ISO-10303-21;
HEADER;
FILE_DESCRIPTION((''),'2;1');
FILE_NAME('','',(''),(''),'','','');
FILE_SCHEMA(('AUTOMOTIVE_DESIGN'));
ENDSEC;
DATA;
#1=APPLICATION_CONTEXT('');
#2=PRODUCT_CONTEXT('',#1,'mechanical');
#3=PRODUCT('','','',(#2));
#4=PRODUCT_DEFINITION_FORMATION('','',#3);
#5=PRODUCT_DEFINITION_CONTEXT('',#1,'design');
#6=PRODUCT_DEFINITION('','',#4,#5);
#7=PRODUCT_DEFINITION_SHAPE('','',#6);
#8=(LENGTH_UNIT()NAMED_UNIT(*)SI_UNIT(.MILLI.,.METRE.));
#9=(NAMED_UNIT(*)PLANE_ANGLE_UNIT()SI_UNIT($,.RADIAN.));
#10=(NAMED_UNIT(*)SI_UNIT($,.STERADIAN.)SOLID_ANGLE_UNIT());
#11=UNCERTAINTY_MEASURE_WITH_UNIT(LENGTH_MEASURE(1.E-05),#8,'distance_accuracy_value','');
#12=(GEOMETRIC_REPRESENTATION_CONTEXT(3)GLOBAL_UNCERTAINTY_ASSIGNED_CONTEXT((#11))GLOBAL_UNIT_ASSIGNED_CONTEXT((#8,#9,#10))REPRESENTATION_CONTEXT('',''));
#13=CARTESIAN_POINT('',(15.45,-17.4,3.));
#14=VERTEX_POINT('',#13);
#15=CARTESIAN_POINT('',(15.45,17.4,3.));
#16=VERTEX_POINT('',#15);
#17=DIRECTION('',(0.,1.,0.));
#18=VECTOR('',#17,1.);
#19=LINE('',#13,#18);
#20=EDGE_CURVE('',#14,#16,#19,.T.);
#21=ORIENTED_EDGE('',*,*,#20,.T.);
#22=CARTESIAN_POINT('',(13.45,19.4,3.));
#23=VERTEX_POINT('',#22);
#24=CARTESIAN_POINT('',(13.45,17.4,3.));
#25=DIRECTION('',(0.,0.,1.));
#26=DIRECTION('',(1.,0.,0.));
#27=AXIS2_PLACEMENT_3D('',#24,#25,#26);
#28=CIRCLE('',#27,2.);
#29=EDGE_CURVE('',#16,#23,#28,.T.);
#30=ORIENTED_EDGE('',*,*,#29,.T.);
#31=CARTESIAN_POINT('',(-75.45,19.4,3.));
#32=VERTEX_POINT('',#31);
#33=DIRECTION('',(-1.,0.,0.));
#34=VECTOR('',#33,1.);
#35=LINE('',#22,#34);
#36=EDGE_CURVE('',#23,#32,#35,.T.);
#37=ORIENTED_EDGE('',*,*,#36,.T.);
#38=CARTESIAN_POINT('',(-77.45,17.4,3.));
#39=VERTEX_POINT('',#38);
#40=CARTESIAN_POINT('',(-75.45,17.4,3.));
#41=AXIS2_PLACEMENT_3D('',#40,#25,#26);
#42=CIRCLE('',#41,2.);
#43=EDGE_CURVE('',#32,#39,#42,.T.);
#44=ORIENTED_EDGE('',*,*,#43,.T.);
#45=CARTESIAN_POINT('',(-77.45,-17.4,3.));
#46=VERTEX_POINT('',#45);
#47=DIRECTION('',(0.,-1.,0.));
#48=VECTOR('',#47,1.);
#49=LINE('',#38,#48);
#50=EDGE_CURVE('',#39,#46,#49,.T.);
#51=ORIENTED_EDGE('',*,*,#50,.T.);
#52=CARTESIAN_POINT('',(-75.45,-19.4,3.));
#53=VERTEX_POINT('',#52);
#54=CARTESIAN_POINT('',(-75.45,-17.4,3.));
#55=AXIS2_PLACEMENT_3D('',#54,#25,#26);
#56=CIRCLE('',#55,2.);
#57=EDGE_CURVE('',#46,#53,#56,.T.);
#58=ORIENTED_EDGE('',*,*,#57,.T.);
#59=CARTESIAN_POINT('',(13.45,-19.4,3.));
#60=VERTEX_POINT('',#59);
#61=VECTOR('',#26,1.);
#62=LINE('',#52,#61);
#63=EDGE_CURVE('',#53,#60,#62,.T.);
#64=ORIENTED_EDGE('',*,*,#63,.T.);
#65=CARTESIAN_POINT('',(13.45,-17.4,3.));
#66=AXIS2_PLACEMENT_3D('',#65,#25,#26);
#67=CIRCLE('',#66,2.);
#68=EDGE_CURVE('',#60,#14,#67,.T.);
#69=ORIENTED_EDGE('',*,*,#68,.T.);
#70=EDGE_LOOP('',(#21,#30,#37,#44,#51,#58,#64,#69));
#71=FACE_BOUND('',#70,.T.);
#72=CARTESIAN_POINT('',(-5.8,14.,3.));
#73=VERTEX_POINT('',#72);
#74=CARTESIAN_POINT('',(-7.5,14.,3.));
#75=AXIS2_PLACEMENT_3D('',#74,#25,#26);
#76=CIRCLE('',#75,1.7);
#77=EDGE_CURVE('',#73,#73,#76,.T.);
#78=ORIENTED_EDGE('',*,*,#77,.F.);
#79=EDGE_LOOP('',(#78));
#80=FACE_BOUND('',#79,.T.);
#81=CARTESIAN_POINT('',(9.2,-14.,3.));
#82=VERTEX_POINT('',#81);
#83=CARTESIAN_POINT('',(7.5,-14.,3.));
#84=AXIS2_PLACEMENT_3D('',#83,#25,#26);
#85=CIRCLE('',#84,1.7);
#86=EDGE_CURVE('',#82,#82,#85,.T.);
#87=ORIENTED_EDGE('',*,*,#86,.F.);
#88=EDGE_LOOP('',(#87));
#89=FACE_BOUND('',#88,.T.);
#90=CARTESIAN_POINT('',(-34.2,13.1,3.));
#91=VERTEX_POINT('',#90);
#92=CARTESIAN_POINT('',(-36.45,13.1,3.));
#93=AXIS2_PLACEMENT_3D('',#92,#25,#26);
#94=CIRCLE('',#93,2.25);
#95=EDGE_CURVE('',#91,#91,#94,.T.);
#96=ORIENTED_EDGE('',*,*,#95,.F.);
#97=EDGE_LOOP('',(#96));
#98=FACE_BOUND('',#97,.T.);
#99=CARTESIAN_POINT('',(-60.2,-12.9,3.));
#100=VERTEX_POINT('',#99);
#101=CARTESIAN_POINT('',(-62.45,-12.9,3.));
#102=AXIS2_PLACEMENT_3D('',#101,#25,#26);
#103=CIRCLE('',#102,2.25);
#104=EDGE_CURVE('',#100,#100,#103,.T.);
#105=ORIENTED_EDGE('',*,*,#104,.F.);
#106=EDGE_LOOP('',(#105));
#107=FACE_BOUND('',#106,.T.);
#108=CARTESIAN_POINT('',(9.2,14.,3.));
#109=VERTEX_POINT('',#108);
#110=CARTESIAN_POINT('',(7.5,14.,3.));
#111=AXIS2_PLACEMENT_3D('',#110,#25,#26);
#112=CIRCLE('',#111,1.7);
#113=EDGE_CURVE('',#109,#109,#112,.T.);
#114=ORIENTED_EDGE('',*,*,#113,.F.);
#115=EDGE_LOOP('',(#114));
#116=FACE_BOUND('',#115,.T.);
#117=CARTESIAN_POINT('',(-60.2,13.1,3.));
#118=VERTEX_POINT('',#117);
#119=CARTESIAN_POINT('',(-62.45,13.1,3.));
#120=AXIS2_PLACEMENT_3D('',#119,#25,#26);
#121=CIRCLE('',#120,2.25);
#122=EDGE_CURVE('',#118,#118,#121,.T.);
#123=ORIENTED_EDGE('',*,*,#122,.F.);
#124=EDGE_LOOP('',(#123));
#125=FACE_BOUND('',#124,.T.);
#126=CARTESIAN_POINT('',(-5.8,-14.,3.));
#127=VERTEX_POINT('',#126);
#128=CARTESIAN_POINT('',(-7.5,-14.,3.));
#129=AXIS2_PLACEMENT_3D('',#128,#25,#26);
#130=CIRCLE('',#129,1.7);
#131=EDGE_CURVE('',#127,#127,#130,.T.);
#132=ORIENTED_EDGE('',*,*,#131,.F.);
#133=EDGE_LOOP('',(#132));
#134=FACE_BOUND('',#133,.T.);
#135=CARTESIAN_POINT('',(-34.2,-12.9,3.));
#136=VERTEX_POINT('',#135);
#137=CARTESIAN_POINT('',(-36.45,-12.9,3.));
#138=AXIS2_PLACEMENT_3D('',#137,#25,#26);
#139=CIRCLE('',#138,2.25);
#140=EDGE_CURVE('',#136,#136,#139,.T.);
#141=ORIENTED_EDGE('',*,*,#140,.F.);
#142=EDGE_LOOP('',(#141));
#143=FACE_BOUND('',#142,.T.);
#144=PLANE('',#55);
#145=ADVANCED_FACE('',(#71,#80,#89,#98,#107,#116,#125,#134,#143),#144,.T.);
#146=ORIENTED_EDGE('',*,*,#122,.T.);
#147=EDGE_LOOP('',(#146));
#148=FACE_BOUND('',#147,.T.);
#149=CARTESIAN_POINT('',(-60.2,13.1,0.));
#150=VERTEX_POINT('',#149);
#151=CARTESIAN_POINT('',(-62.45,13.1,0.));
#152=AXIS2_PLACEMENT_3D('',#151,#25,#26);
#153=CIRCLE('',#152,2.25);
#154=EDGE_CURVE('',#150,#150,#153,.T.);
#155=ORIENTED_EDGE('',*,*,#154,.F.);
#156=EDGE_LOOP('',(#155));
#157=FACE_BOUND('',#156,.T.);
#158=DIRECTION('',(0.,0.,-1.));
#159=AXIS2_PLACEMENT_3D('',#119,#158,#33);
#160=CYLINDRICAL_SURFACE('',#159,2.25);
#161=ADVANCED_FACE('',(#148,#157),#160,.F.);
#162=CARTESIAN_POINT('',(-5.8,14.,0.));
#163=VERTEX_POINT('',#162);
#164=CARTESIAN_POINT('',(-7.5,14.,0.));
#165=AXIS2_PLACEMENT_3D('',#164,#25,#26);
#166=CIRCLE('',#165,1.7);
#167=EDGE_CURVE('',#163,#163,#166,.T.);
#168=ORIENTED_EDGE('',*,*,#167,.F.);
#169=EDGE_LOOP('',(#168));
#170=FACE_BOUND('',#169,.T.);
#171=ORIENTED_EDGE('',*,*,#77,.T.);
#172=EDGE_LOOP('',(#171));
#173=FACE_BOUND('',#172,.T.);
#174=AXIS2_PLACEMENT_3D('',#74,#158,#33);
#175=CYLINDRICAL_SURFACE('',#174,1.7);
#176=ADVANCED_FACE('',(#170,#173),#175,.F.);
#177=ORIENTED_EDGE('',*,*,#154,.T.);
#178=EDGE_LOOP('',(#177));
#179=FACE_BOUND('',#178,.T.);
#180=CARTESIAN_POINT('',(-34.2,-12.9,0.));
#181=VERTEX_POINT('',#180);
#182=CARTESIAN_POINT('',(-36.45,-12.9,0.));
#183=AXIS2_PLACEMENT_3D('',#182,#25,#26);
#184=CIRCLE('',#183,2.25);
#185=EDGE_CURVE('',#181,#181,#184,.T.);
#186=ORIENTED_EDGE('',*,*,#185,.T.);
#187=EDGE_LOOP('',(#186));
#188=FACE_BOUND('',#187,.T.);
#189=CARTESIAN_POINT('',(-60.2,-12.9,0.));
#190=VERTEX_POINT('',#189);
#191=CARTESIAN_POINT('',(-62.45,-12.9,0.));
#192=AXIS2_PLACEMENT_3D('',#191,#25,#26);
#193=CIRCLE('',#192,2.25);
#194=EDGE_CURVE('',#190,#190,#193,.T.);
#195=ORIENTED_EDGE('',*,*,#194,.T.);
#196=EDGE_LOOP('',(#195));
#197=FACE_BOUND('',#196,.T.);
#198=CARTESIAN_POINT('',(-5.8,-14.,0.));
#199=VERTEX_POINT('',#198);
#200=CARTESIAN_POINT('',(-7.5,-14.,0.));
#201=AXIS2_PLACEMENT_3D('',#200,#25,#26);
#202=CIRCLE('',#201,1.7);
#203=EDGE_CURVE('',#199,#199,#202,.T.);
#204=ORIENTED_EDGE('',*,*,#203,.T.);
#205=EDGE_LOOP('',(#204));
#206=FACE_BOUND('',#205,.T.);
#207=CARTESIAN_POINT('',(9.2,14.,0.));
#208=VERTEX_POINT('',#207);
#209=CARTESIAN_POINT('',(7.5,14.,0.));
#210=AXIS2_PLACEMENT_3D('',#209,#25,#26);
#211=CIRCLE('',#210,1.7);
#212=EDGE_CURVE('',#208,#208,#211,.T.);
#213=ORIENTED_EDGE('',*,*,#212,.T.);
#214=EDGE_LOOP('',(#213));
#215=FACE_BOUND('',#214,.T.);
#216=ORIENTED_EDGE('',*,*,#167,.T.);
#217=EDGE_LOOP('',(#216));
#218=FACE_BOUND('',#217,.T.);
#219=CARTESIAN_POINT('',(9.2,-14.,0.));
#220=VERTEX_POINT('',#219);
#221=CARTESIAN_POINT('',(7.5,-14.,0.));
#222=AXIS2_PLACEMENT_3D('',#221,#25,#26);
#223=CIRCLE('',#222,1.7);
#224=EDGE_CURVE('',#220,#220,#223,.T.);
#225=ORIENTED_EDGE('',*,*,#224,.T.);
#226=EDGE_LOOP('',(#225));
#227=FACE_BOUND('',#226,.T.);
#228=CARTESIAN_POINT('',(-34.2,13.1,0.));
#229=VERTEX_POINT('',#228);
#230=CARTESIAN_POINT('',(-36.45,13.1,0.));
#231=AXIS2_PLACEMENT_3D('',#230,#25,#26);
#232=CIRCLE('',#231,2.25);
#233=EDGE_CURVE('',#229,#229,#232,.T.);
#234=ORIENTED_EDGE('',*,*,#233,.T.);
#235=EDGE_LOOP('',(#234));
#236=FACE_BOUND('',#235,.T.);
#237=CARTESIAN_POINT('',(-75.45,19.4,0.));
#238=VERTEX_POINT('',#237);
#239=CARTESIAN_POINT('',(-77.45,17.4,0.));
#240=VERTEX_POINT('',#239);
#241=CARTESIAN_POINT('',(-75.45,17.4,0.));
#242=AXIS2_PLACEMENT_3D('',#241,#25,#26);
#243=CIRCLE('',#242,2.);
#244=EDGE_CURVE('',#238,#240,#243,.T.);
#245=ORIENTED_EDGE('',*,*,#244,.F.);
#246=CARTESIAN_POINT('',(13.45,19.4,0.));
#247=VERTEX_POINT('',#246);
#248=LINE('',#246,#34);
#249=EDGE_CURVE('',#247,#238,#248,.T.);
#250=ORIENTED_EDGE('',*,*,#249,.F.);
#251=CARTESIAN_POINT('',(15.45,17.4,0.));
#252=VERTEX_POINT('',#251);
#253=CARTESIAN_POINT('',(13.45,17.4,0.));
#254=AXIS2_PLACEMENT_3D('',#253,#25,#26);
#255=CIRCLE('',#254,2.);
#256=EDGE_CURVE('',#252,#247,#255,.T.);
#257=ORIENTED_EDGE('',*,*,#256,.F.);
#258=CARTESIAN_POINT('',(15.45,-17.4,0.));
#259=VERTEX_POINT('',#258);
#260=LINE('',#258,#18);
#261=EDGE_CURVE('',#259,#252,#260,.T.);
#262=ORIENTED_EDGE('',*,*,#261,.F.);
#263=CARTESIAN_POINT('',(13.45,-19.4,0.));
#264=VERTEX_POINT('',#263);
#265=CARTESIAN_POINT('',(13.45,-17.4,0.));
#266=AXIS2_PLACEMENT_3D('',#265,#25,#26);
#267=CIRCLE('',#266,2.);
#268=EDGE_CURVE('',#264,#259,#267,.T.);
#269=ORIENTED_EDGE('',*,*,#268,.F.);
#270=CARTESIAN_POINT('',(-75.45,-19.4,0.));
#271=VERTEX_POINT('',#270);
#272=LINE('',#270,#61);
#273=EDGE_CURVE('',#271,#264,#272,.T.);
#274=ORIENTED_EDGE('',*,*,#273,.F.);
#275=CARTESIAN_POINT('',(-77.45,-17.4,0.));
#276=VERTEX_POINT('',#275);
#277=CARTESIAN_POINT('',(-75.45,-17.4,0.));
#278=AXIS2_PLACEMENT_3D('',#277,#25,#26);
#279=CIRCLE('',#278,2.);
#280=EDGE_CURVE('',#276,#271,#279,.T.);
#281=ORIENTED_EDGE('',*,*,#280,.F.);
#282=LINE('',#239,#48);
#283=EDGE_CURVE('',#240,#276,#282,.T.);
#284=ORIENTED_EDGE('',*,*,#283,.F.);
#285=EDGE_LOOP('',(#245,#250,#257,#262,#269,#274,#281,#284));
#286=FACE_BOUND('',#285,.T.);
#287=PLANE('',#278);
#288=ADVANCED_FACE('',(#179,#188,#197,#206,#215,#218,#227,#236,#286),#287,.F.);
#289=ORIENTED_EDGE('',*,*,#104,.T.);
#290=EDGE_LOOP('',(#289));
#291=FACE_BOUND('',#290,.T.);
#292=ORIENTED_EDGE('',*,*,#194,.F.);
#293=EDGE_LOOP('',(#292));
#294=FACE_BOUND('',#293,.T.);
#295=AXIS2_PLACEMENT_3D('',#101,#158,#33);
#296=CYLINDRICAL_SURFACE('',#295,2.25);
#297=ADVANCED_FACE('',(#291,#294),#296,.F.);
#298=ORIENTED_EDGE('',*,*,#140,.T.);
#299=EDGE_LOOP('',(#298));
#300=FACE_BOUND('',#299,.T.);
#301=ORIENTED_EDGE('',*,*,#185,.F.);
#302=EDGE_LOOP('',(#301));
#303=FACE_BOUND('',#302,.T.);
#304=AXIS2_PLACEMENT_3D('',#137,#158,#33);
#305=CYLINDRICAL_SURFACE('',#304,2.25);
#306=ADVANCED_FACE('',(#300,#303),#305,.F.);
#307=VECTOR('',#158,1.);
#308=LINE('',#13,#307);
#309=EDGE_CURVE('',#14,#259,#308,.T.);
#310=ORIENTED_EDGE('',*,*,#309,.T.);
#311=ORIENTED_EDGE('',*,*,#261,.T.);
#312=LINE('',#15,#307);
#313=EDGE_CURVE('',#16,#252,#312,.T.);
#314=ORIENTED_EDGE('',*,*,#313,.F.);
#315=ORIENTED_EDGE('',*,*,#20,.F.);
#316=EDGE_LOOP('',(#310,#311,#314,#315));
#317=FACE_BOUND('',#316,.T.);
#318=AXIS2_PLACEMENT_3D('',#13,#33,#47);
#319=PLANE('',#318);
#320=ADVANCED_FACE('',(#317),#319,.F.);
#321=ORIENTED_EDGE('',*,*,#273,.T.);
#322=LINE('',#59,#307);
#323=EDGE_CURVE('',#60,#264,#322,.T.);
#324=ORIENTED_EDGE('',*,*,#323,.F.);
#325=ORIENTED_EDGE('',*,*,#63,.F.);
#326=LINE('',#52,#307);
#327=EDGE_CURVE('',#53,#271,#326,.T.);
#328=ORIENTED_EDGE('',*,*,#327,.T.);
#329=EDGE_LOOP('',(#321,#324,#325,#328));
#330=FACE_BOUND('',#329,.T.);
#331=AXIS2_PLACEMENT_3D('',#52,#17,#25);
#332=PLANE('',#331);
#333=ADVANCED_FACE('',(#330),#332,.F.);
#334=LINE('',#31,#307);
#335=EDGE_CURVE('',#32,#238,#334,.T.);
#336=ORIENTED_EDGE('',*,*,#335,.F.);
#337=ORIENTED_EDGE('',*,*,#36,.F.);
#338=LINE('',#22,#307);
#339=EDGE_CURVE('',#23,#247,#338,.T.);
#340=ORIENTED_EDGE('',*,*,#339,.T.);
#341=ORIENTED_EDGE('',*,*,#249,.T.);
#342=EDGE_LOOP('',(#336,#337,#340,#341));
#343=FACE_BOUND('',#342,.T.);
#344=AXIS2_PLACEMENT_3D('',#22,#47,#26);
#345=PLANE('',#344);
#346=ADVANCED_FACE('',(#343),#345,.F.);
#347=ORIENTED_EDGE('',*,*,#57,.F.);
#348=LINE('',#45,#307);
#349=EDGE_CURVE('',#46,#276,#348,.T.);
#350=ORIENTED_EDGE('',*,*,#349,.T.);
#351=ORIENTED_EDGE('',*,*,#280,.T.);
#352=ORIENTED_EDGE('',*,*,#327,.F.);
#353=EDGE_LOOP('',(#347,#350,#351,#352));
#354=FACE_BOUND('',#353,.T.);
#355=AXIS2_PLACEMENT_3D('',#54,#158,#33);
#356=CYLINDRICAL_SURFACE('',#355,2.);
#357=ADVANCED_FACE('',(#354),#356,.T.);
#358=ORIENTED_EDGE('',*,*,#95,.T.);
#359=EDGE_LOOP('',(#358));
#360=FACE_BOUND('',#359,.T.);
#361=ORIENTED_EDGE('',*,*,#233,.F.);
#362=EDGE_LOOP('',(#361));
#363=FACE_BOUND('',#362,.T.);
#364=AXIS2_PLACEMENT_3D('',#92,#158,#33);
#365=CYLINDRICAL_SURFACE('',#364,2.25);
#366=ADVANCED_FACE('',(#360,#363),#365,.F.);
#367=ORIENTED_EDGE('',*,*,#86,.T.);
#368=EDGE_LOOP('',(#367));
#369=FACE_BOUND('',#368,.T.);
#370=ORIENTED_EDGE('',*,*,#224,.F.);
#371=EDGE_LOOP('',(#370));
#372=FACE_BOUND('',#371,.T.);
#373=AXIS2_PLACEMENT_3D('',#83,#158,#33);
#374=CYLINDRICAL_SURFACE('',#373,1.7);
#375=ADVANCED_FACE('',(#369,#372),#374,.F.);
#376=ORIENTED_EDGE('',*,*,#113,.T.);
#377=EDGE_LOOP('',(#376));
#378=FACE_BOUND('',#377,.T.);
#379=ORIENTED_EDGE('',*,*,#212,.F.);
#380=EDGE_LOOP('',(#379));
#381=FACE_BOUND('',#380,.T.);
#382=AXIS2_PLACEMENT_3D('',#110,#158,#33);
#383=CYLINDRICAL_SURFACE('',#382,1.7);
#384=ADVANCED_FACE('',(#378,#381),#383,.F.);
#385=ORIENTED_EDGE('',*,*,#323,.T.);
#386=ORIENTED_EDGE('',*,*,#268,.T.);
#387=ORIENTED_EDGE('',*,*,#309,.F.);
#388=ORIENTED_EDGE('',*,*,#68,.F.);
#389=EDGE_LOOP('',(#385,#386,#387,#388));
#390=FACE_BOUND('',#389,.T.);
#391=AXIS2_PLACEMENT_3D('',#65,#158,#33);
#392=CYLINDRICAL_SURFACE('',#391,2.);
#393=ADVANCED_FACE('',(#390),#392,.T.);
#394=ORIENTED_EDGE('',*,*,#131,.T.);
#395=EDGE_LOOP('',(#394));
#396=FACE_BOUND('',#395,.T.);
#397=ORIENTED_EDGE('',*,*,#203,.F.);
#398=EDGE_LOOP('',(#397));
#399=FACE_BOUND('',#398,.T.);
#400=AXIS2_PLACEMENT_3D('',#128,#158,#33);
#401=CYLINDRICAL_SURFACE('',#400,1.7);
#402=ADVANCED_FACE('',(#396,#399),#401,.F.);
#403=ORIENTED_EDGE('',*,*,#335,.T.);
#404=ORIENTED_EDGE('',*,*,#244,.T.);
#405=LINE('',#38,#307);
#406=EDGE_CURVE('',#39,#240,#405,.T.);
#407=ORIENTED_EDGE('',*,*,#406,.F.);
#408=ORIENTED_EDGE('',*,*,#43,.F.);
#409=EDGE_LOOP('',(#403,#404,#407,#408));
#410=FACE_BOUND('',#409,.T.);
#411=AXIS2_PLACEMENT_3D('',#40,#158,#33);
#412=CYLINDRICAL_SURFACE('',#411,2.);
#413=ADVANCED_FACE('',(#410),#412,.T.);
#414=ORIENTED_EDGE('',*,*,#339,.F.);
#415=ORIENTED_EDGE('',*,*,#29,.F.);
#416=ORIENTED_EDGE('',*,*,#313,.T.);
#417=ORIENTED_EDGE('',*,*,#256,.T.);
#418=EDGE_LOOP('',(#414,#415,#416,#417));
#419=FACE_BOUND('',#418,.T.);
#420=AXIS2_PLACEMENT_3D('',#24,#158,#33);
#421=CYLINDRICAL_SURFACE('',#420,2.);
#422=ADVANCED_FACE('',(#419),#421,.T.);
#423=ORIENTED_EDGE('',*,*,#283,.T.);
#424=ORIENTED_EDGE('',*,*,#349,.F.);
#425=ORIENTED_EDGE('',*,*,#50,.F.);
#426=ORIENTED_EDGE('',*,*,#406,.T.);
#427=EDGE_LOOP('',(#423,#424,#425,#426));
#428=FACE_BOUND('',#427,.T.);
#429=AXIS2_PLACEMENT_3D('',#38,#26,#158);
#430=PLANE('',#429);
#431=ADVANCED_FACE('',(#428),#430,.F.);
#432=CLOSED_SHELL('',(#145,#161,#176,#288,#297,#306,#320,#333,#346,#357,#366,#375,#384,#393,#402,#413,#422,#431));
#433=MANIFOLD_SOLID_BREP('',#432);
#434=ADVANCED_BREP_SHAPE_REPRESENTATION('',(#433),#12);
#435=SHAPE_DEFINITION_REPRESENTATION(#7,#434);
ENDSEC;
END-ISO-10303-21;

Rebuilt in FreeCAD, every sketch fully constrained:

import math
import FreeCAD as App
import Part
import Sketcher

V = App.Vector
Q = App.Units.Quantity

doc = App.newDocument("Part")
body = doc.addObject("PartDesign::Body", "Body")

# Sketch on XY plane
sketch1 = body.newObject("Sketcher::SketchObject", "Sketch")
sketch1.AttachmentSupport = (doc.getObject("XY_Plane"), [""])
sketch1.MapMode = "FlatFace"
sketch1.addGeometry(Part.LineSegment(V(-75.45, -19.4, 0), V(13.45, -19.4, 0)), False)
sketch1.addGeometry(Part.ArcOfCircle(Part.Circle(V(13.45, -17.4, 0), V(0, 0, 1), 2), math.radians(-90), math.radians(0)), False)
sketch1.addGeometry(Part.LineSegment(V(15.45, -17.4, 0), V(15.45, 17.4, 0)), False)
sketch1.addGeometry(Part.ArcOfCircle(Part.Circle(V(13.45, 17.4, 0), V(0, 0, 1), 2), math.radians(0), math.radians(90)), False)
sketch1.addGeometry(Part.LineSegment(V(13.45, 19.4, 0), V(-75.45, 19.4, 0)), False)
sketch1.addGeometry(Part.ArcOfCircle(Part.Circle(V(-75.45, 17.4, 0), V(0, 0, 1), 2), math.radians(90), math.radians(180)), False)
sketch1.addGeometry(Part.LineSegment(V(-77.45, 17.4, 0), V(-77.45, -17.4, 0)), False)
sketch1.addGeometry(Part.ArcOfCircle(Part.Circle(V(-75.45, -17.4, 0), V(0, 0, 1), 2), math.radians(-180), math.radians(-90)), False)
sketch1.addGeometry(Part.Circle(V(-62.45, -12.9, 0), V(0, 0, 1), 2.25), False)
sketch1.addGeometry(Part.Circle(V(-36.45, -12.9, 0), V(0, 0, 1), 2.25), False)
sketch1.addGeometry(Part.Circle(V(-7.5, -14, 0), V(0, 0, 1), 1.7), False)
sketch1.addGeometry(Part.Circle(V(7.5, -14, 0), V(0, 0, 1), 1.7), False)
sketch1.addGeometry(Part.Circle(V(-62.45, 13.1, 0), V(0, 0, 1), 2.25), False)
sketch1.addGeometry(Part.Circle(V(-36.45, 13.1, 0), V(0, 0, 1), 2.25), False)
sketch1.addGeometry(Part.Circle(V(-7.5, 14, 0), V(0, 0, 1), 1.7), False)
sketch1.addGeometry(Part.Circle(V(7.5, 14, 0), V(0, 0, 1), 1.7), False)
sketch1.addConstraint(Sketcher.Constraint("Tangent", 0, 2, 1, 1))
sketch1.addConstraint(Sketcher.Constraint("Tangent", 1, 2, 2, 1))
sketch1.addConstraint(Sketcher.Constraint("Tangent", 2, 2, 3, 1))
sketch1.addConstraint(Sketcher.Constraint("Tangent", 3, 2, 4, 1))
sketch1.addConstraint(Sketcher.Constraint("Tangent", 4, 2, 5, 1))
sketch1.addConstraint(Sketcher.Constraint("Tangent", 5, 2, 6, 1))
sketch1.addConstraint(Sketcher.Constraint("Tangent", 6, 2, 7, 1))
sketch1.addConstraint(Sketcher.Constraint("Tangent", 7, 2, 0, 1))
sketch1.addConstraint(Sketcher.Constraint("Horizontal", 0))
sketch1.addConstraint(Sketcher.Constraint("Vertical", 2))
sketch1.addConstraint(Sketcher.Constraint("Horizontal", 4))
sketch1.addConstraint(Sketcher.Constraint("Vertical", 6))
sketch1.addConstraint(Sketcher.Constraint("Equal", 1, 3))
sketch1.addConstraint(Sketcher.Constraint("Equal", 3, 5))
sketch1.addConstraint(Sketcher.Constraint("Equal", 5, 7))
sketch1.addConstraint(Sketcher.Constraint("Equal", 8, 9))
sketch1.addConstraint(Sketcher.Constraint("Equal", 10, 11))
sketch1.addConstraint(Sketcher.Constraint("Equal", 9, 12))
sketch1.addConstraint(Sketcher.Constraint("Equal", 12, 13))
sketch1.addConstraint(Sketcher.Constraint("Equal", 11, 14))
sketch1.addConstraint(Sketcher.Constraint("Equal", 14, 15))
sketch1.addConstraint(Sketcher.Constraint("Symmetric", 11, 3, 14, 3, -1, 1))
sketch1.addConstraint(Sketcher.Constraint("Symmetric", 10, 3, 15, 3, -1, 1))
sketch1.addConstraint(Sketcher.Constraint("Symmetric", 10, 3, 11, 3, -2))
sketch1.addConstraint(Sketcher.Constraint("Horizontal", 8, 3, 9, 3))
sketch1.addConstraint(Sketcher.Constraint("Horizontal", 12, 3, 13, 3))
sketch1.addConstraint(Sketcher.Constraint("Vertical", 8, 3, 12, 3))
sketch1.addConstraint(Sketcher.Constraint("Vertical", 9, 3, 13, 3))
sketch1.addConstraint(Sketcher.Constraint("Radius", 1, Q("2 mm")))
sketch1.addConstraint(Sketcher.Constraint("Diameter", 8, Q("4.5 mm")))
sketch1.addConstraint(Sketcher.Constraint("Diameter", 10, Q("3.4 mm")))
sketch1.addConstraint(Sketcher.Constraint("DistanceX", 0, 1, 0, 2, Q("88.9 mm")))
sketch1.addConstraint(Sketcher.Constraint("DistanceY", 2, 1, 2, 2, Q("34.8 mm")))
sketch1.addConstraint(Sketcher.Constraint("DistanceY", 10, 3, -1, 1, Q("14 mm")))
sketch1.addConstraint(Sketcher.Constraint("DistanceX", 7, 3, 8, 3, Q("13 mm")))
sketch1.addConstraint(Sketcher.Constraint("DistanceX", 8, 3, 9, 3, Q("26 mm")))
sketch1.addConstraint(Sketcher.Constraint("DistanceX", 10, 3, 11, 3, Q("15 mm")))
sketch1.addConstraint(Sketcher.Constraint("DistanceY", 8, 3, 12, 3, Q("26 mm")))
sketch1.addConstraint(Sketcher.Constraint("DistanceY", 1, 3, -1, 1, Q("17.4 mm")))
sketch1.addConstraint(Sketcher.Constraint("DistanceY", 8, 3, -1, 1, Q("12.9 mm")))
sketch1.addConstraint(Sketcher.Constraint("DistanceX", -1, 1, 1, 3, Q("13.45 mm")))
pad1 = body.newObject("PartDesign::Pad", "Pad")
pad1.Profile = sketch1
pad1.Length = 3

doc.recompute()
